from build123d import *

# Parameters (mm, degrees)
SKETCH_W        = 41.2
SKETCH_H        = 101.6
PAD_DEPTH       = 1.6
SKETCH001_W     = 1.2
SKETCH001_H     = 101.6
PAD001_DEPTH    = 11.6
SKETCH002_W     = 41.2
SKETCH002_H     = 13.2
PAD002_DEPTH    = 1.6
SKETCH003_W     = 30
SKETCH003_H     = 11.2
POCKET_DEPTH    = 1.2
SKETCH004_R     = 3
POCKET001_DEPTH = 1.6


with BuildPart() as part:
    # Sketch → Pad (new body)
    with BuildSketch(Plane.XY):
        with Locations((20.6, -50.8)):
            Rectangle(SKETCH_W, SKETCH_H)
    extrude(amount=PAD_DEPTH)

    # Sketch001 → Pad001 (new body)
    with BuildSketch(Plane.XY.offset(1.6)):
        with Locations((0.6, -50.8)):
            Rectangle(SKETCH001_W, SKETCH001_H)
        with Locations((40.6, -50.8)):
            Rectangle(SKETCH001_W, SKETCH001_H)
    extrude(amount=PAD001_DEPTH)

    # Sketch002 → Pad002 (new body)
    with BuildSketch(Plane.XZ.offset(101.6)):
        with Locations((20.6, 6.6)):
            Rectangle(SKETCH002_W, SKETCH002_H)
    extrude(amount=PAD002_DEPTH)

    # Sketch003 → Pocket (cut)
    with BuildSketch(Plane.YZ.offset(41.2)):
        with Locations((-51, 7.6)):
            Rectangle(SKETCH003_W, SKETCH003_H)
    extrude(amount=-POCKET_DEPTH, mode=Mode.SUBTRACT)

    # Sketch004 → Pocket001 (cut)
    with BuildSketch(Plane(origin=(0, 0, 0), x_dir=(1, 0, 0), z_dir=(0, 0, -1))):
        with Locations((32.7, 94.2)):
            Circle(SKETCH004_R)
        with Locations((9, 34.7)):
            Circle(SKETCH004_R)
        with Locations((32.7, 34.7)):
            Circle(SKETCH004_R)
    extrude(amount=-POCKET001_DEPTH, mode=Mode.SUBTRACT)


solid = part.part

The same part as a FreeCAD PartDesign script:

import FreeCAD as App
import Part
import Sketcher


def add_polygon(sketch, points):
    """Adds a closed chain of lines whose ends are joined by coincident constraints."""
    first, n = sketch.GeometryCount, len(points)
    for a, b in zip(points, points[1:] + points[:1]):
        sketch.addGeometry(Part.LineSegment(App.Vector(*a, 0), App.Vector(*b, 0)), False)
    for i in range(n):
        sketch.addConstraint(Sketcher.Constraint("Coincident", first + i, 2, first + (i + 1) % n, 1))

doc = App.newDocument("Part")
body = doc.addObject("PartDesign::Body", "Body")

# Sketch on XY plane
sketch1 = body.newObject("Sketcher::SketchObject", "Sketch")
sketch1.AttachmentSupport = (doc.getObject("XY_Plane"), [""])
sketch1.MapMode = "FlatFace"
add_polygon(sketch1, [(0, 0), (0, -101.6), (41.2, -101.6), (41.2, 0)])  # lines 0-3
sketch1.addConstraint([
    Sketcher.Constraint("Vertical", 0),
    Sketcher.Constraint("Horizontal", 1),
    Sketcher.Constraint("Vertical", 2),
    Sketcher.Constraint("Horizontal", 3),
    Sketcher.Constraint("Coincident", 3, 2, -1, 1),
    Sketcher.Constraint("DistanceX", 1, 1, 1, 2, 41.2),
    Sketcher.Constraint("DistanceY", 0, 2, 0, 1, 101.6),
])
pad1 = body.newObject("PartDesign::Pad", "Pad")
pad1.Profile = sketch1
pad1.Length = 1.6

# Sketch on XY plane
sketch2 = body.newObject("Sketcher::SketchObject", "Sketch001")
sketch2.AttachmentSupport = (doc.getObject("XY_Plane"), [""])
sketch2.MapMode = "FlatFace"
sketch2.AttachmentOffset = App.Placement(App.Vector(0, 0, 1.6), App.Rotation())
add_polygon(sketch2, [(0, 0), (0, -101.6), (1.2, -101.6), (1.2, 0)])  # lines 0-3
add_polygon(sketch2, [(40, 0), (40, -101.6), (41.2, -101.6), (41.2, 0)])  # lines 4-7
sketch2.addConstraint([
    Sketcher.Constraint("Vertical", 0),
    Sketcher.Constraint("Horizontal", 1),
    Sketcher.Constraint("Vertical", 2),
    Sketcher.Constraint("Horizontal", 3),
    Sketcher.Constraint("Vertical", 4),
    Sketcher.Constraint("Horizontal", 5),
    Sketcher.Constraint("Vertical", 6),
    Sketcher.Constraint("Horizontal", 7),
    Sketcher.Constraint("Coincident", 3, 2, -1, 1),
    Sketcher.Constraint("PointOnObject", 6, 2, -1),
    Sketcher.Constraint("Horizontal", 1, 2, 4, 2),
    Sketcher.Constraint("Equal", 3, 5),
    Sketcher.Constraint("DistanceX", 1, 1, 1, 2, 1.2),
    Sketcher.Constraint("DistanceY", 0, 2, 0, 1, 101.6),
    Sketcher.Constraint("DistanceX", -1, 1, 4, 2, 40.0),
])
pad2 = body.newObject("PartDesign::Pad", "Pad001")
pad2.Profile = sketch2
pad2.Length = 11.6

# Sketch on XZ plane
sketch3 = body.newObject("Sketcher::SketchObject", "Sketch002")
sketch3.AttachmentSupport = (doc.getObject("XZ_Plane"), [""])
sketch3.MapMode = "FlatFace"
sketch3.AttachmentOffset = App.Placement(App.Vector(0, 0, 101.6), App.Rotation())
add_polygon(sketch3, [(0, 13.2), (0, 0), (41.2, 0), (41.2, 13.2)])  # lines 0-3
sketch3.addConstraint([
    Sketcher.Constraint("Vertical", 0),
    Sketcher.Constraint("Horizontal", 1),
    Sketcher.Constraint("Vertical", 2),
    Sketcher.Constraint("Horizontal", 3),
    Sketcher.Constraint("Coincident", 0, 2, -1, 1),
    Sketcher.Constraint("DistanceX", 1, 1, 1, 2, 41.2),
    Sketcher.Constraint("DistanceY", 0, 2, 0, 1, 13.2),
])
pad3 = body.newObject("PartDesign::Pad", "Pad002")
pad3.Profile = sketch3
pad3.Length = 1.6

# Sketch on YZ plane
sketch4 = body.newObject("Sketcher::SketchObject", "Sketch003")
sketch4.AttachmentSupport = (doc.getObject("YZ_Plane"), [""])
sketch4.MapMode = "FlatFace"
sketch4.AttachmentOffset = App.Placement(App.Vector(0, 0, 41.2), App.Rotation())
add_polygon(sketch4, [(-66, 13.2), (-66, 2), (-36, 2), (-36, 13.2)])  # lines 0-3
sketch4.addConstraint([
    Sketcher.Constraint("Vertical", 0),
    Sketcher.Constraint("Horizontal", 1),
    Sketcher.Constraint("Vertical", 2),
    Sketcher.Constraint("Horizontal", 3),
    Sketcher.Constraint("DistanceX", 1, 1, 1, 2, 30.0),
    Sketcher.Constraint("DistanceY", 0, 2, 0, 1, 11.2),
    Sketcher.Constraint("DistanceX", 0, 2, -1, 1, 66.0),
    Sketcher.Constraint("DistanceY", -1, 1, 0, 2, 2.0),
])
pocket1 = body.newObject("PartDesign::Pocket", "Pocket")
pocket1.Profile = sketch4
pocket1.Length = 1.2

# Sketch on XY plane
sketch5 = body.newObject("Sketcher::SketchObject", "Sketch004")
sketch5.AttachmentSupport = (doc.getObject("XY_Plane"), [""])
sketch5.MapMode = "FlatFace"
sketch5.addGeometry([
    Part.Circle(App.Vector(32.7, -94.2, 0), App.Vector(0, 0, 1), 3),
    Part.Circle(App.Vector(9, -34.7, 0), App.Vector(0, 0, 1), 3),
    Part.Circle(App.Vector(32.7, -34.7, 0), App.Vector(0, 0, 1), 3),
], False)
sketch5.addConstraint([
    Sketcher.Constraint("Equal", 0, 1),
    Sketcher.Constraint("Equal", 1, 2),
    Sketcher.Constraint("Horizontal", 1, 3, 2, 3),
    Sketcher.Constraint("Vertical", 0, 3, 2, 3),
    Sketcher.Constraint("Diameter", 0, 6.0),
    Sketcher.Constraint("DistanceX", -1, 1, 1, 3, 9.0),
    Sketcher.Constraint("DistanceX", -1, 1, 0, 3, 32.7),
    Sketcher.Constraint("DistanceY", 0, 3, -1, 1, 94.2),
    Sketcher.Constraint("DistanceY", 1, 3, -1, 1, 34.7),
])
pocket2 = body.newObject("PartDesign::Pocket", "Pocket001")
pocket2.Profile = sketch5
pocket2.Length = 1.6
pocket2.Reversed = True

doc.recompute()
